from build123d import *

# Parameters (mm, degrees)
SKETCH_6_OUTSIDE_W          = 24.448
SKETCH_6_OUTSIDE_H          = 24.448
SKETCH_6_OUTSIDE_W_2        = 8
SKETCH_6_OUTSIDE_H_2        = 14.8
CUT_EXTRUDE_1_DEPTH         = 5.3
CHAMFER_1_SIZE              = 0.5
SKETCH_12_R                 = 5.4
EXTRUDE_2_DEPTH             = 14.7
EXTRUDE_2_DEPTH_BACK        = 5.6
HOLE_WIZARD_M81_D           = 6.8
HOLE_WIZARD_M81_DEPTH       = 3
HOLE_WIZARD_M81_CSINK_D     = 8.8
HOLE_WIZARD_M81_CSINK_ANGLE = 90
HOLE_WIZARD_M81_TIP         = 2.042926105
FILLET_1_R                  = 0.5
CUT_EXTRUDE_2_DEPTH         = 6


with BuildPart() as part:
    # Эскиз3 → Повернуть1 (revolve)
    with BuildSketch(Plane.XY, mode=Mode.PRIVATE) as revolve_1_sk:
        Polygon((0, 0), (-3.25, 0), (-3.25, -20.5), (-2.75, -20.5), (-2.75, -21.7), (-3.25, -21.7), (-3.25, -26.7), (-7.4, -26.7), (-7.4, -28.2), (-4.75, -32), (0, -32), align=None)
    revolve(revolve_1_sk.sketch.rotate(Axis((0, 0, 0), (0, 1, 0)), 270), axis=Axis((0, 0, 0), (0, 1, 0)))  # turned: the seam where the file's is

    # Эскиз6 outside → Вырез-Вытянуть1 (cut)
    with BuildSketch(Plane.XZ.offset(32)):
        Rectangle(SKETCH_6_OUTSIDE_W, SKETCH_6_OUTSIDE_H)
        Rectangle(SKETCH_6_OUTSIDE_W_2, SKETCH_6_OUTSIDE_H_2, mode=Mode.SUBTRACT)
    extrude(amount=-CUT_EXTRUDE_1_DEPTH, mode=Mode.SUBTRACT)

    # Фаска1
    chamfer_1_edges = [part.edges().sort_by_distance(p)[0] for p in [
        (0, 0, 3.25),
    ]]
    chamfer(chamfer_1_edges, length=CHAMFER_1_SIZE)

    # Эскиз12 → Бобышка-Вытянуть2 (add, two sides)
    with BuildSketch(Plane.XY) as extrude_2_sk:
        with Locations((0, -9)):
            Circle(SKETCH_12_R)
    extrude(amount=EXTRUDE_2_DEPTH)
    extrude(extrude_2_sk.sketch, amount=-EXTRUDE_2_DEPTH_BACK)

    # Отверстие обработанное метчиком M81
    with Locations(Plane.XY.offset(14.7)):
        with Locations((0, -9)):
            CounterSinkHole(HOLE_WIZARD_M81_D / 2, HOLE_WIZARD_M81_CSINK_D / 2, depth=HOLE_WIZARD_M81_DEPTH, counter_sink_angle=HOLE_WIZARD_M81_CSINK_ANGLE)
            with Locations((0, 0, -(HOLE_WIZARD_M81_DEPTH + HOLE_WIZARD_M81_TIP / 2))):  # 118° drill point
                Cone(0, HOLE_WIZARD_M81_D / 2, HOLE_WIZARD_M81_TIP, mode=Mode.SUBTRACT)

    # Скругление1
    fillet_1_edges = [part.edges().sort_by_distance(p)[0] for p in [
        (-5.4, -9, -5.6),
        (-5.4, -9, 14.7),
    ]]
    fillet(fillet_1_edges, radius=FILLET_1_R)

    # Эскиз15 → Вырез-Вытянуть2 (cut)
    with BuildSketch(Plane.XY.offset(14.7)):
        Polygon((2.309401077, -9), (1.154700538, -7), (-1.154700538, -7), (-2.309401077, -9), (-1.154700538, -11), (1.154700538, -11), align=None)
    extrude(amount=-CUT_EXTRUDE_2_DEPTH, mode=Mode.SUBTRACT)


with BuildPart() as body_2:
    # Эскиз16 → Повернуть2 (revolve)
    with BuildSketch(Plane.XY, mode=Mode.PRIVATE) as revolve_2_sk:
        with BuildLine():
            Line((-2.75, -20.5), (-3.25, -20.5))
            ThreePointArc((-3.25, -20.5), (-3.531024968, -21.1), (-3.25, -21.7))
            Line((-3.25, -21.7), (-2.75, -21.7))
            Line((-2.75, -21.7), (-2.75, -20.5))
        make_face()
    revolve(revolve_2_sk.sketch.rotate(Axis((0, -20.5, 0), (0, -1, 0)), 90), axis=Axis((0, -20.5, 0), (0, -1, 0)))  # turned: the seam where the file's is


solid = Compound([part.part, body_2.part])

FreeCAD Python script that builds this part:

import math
import FreeCAD as App
import Part
import Sketcher
from FreeCAD import Vector
Q = App.Units.Quantity


def edges_at(feature, points):
    """Names of the edges that pass closest to the given points."""
    edges = feature.Shape.Edges
    near = lambda p: min(range(len(edges)), key=lambda i: edges[i].distToShape(Part.Vertex(*p))[0])
    return sorted({f"Edge{near(p) + 1}" for p in points})

doc = App.newDocument("Part")
params = doc.addObject("Spreadsheet::Sheet", "Params")
for row, (alias, value) in enumerate([
    ("sketch1_height", "5 mm"),
    ("sketch1_height2", "32 mm"),
    ("sketch1_width", "0.5 mm"),
    ("sketch1_height3", "20.5 mm"),
    ("sketch1_height4", "1.2 mm"),
    ("revolution_angle", "360 deg"),
    ("sketch2_width", "8 mm"),
    ("sketch2_height", "14.8 mm"),
    ("pocket1_length", "5.3 mm"),
    ("chamfer_size", "0.5 mm"),
    ("sketch3_diameter", "10.8 mm"),
    ("pad1_length", "14.7 mm"),
    ("pad1_length2", "5.6 mm"),
    ("sketch4_diameter", "6.8 mm"),
    ("hole_diameter", "6.8 mm"),
    ("hole_depth", "3 mm"),
    ("hole_csink_diameter", "8.8 mm"),
    ("fillet_radius", "0.5 mm"),
    ("pocket2_length", "6 mm"),
    ("sketch6_width", "0.5 mm"),
    ("sketch6_height", "1.2 mm"),
    ("revolution2_angle", "360 deg"),
], start=1):
    params.set(f"A{row}", alias)
    params.set(f"B{row}", "=" + value)
    params.setAlias(f"B{row}", alias)

body = doc.addObject("PartDesign::Body", "Body")

sketch1 = body.newObject("Sketcher::SketchObject", "Sketch")
sketch1.AttachmentSupport = (doc.getObject("XY_Plane"), [""])
sketch1.MapMode = "FlatFace"
sketch1.addGeometry(Part.LineSegment(Vector(0, 0, 0), Vector(-3.25, 0, 0)), False)
sketch1.addGeometry(Part.LineSegment(Vector(-3.25, 0, 0), Vector(-3.25, -20.5, 0)), False)
sketch1.addGeometry(Part.LineSegment(Vector(-3.25, -20.5, 0), Vector(-2.75, -20.5, 0)), False)
sketch1.addGeometry(Part.LineSegment(Vector(-2.75, -20.5, 0), Vector(-2.75, -21.7, 0)), False)
sketch1.addGeometry(Part.LineSegment(Vector(-2.75, -21.7, 0), Vector(-3.25, -21.7, 0)), False)
sketch1.addGeometry(Part.LineSegment(Vector(-3.25, -21.7, 0), Vector(-3.25, -26.7, 0)), False)
sketch1.addGeometry(Part.LineSegment(Vector(-3.25, -26.7, 0), Vector(-7.4, -26.7, 0)), False)
sketch1.addGeometry(Part.LineSegment(Vector(-7.4, -26.7, 0), Vector(-7.4, -28.2, 0)), False)
sketch1.addGeometry(Part.LineSegment(Vector(-7.4, -28.2, 0), Vector(-4.75, -32, 0)), False)
sketch1.addGeometry(Part.LineSegment(Vector(-4.75, -32, 0), Vector(0, -32, 0)), False)
sketch1.addGeometry(Part.LineSegment(Vector(0, -32, 0), Vector(0, 0, 0)), False)
sketch1.addConstraint(Sketcher.Constraint("Coincident", 0, 2, 1, 1))
sketch1.addConstraint(Sketcher.Constraint("Coincident", 1, 2, 2, 1))
sketch1.addConstraint(Sketcher.Constraint("Coincident", 2, 2, 3, 1))
sketch1.addConstraint(Sketcher.Constraint("Coincident", 3, 2, 4, 1))
sketch1.addConstraint(Sketcher.Constraint("Coincident", 4, 2, 5, 1))
sketch1.addConstraint(Sketcher.Constraint("Coincident", 5, 2, 6, 1))
sketch1.addConstraint(Sketcher.Constraint("Coincident", 6, 2, 7, 1))
sketch1.addConstraint(Sketcher.Constraint("Coincident", 7, 2, 8, 1))
sketch1.addConstraint(Sketcher.Constraint("Coincident", 8, 2, 9, 1))
sketch1.addConstraint(Sketcher.Constraint("Coincident", 9, 2, 10, 1))
sketch1.addConstraint(Sketcher.Constraint("Coincident", 10, 2, 0, 1))
sketch1.addConstraint(Sketcher.Constraint("Horizontal", 0))
sketch1.addConstraint(Sketcher.Constraint("Vertical", 1))
sketch1.addConstraint(Sketcher.Constraint("Horizontal", 2))
sketch1.addConstraint(Sketcher.Constraint("Vertical", 3))
sketch1.addConstraint(Sketcher.Constraint("Horizontal", 4))
sketch1.addConstraint(Sketcher.Constraint("Vertical", 5))
sketch1.addConstraint(Sketcher.Constraint("Horizontal", 6))
sketch1.addConstraint(Sketcher.Constraint("Vertical", 7))
sketch1.addConstraint(Sketcher.Constraint("Horizontal", 9))
sketch1.addConstraint(Sketcher.Constraint("Vertical", 10))
sketch1.addConstraint(Sketcher.Constraint("Coincident", 10, 2, -1, 1))
sketch1.addConstraint(Sketcher.Constraint("Vertical", 1, 2, 4, 2))
sketch1.addConstraint(Sketcher.Constraint("DistanceY", 5, 2, 5, 1, 5.0))
sketch1.addConstraint(Sketcher.Constraint("DistanceY", 10, 1, 10, 2, 32.0))
sketch1.addConstraint(Sketcher.Constraint("DistanceX", 2, 1, 2, 2, 0.5))
sketch1.addConstraint(Sketcher.Constraint("DistanceY", 1, 2, 1, 1, 20.5))
sketch1.addConstraint(Sketcher.Constraint("DistanceY", 3, 2, 3, 1, 1.2))
sketch1.addConstraint(Sketcher.Constraint("DistanceY", 7, 2, 7, 1, 1.5))
sketch1.addConstraint(Sketcher.Constraint("DistanceX", 8, 2, 3, 2, 2.0))
sketch1.addConstraint(Sketcher.Constraint("DistanceX", 0, 2, 0, 1, 3.25))
sketch1.addConstraint(Sketcher.Constraint("DistanceX", 6, 2, 6, 1, 4.15))
sketch1.setExpression("Constraints[23]", "Params.sketch1_height")
sketch1.setExpression("Constraints[24]", "Params.sketch1_height2")
sketch1.setExpression("Constraints[25]", "Params.sketch1_width")
sketch1.setExpression("Constraints[26]", "Params.sketch1_height3")
sketch1.setExpression("Constraints[27]", "Params.sketch1_height4")
revolution = body.newObject("PartDesign::Revolution", "Revolution")
revolution.Profile = sketch1
revolution.ReferenceAxis = (sketch1, ["V_Axis"])
revolution.setExpression("Angle", "Params.revolution_angle")

sketch2 = body.newObject("Sketcher::SketchObject", "Sketch001")
sketch2.AttachmentSupport = (doc.getObject("XZ_Plane"), [""])
sketch2.MapMode = "FlatFace"
sketch2.AttachmentOffset = App.Placement(Vector(0, 0, 32), App.Rotation())
sketch2.addGeometry(Part.LineSegment(Vector(-12.224, 12.224, 0), Vector(-12.224, -12.224, 0)), False)
sketch2.addGeometry(Part.LineSegment(Vector(-12.224, -12.224, 0), Vector(12.224, -12.224, 0)), False)
sketch2.addGeometry(Part.LineSegment(Vector(12.224, -12.224, 0), Vector(12.224, 12.224, 0)), False)
sketch2.addGeometry(Part.LineSegment(Vector(12.224, 12.224, 0), Vector(-12.224, 12.224, 0)), False)
sketch2.addGeometry(Part.LineSegment(Vector(4, -7.4, 0), Vector(-4, -7.4, 0)), False)
sketch2.addGeometry(Part.LineSegment(Vector(-4, -7.4, 0), Vector(-4, 7.4, 0)), False)
sketch2.addGeometry(Part.LineSegment(Vector(-4, 7.4, 0), Vector(4, 7.4, 0)), False)
sketch2.addGeometry(Part.LineSegment(Vector(4, 7.4, 0), Vector(4, -7.4, 0)), False)
sketch2.addConstraint(Sketcher.Constraint("Coincident", 0, 2, 1, 1))
sketch2.addConstraint(Sketcher.Constraint("Coincident", 1, 2, 2, 1))
sketch2.addConstraint(Sketcher.Constraint("Coincident", 2, 2, 3, 1))
sketch2.addConstraint(Sketcher.Constraint("Coincident", 3, 2, 0, 1))
sketch2.addConstraint(Sketcher.Constraint("Coincident", 4, 2, 5, 1))
sketch2.addConstraint(Sketcher.Constraint("Coincident", 5, 2, 6, 1))
sketch2.addConstraint(Sketcher.Constraint("Coincident", 6, 2, 7, 1))
sketch2.addConstraint(Sketcher.Constraint("Coincident", 7, 2, 4, 1))
sketch2.addConstraint(Sketcher.Constraint("Vertical", 0))
sketch2.addConstraint(Sketcher.Constraint("Horizontal", 1))
sketch2.addConstraint(Sketcher.Constraint("Vertical", 2))
sketch2.addConstraint(Sketcher.Constraint("Horizontal", 3))
sketch2.addConstraint(Sketcher.Constraint("Horizontal", 4))
sketch2.addConstraint(Sketcher.Constraint("Vertical", 5))
sketch2.addConstraint(Sketcher.Constraint("Horizontal", 6))
sketch2.addConstraint(Sketcher.Constraint("Vertical", 7))
sketch2.addConstraint(Sketcher.Constraint("Symmetric", 0, 2, 2, 2, -1, 1))
sketch2.addConstraint(Sketcher.Constraint("Symmetric", 4, 2, 6, 2, -1, 1))
sketch2.addConstraint(Sketcher.Constraint("Equal", 3, 0))
sketch2.addConstraint(Sketcher.Constraint("DistanceX", 4, 2, 4, 1, 8.0))
sketch2.addConstraint(Sketcher.Constraint("DistanceY", 5, 1, 5, 2, 14.8))
sketch2.addConstraint(Sketcher.Constraint("DistanceX", 1, 1, 1, 2, 24.448))
sketch2.setExpression("Constraints[19]", "Params.sketch2_width")
sketch2.setExpression("Constraints[20]", "Params.sketch2_height")
pocket1 = body.newObject("PartDesign::Pocket", "Pocket")
pocket1.Profile = sketch2
pocket1.setExpression("Length", "Params.pocket1_length")
doc.recompute()

chamfer = body.newObject("PartDesign::Chamfer", "Chamfer")
chamfer.Base = (pocket1, edges_at(pocket1, [(0, 0, 3.25)]))
chamfer.setExpression("Size", "Params.chamfer_size")

sketch3 = body.newObject("Sketcher::SketchObject", "Sketch002")
sketch3.AttachmentSupport = (doc.getObject("XY_Plane"), [""])
sketch3.MapMode = "FlatFace"
sketch3.addGeometry(Part.Circle(Vector(0, -9, 0), Vector(0, 0, 1), 5.4), False)
sketch3.addConstraint(Sketcher.Constraint("PointOnObject", 0, 3, -2))
sketch3.addConstraint(Sketcher.Constraint("Diameter", 0, 10.8))
sketch3.addConstraint(Sketcher.Constraint("DistanceY", 0, 3, -1, 1, 9.0))
sketch3.setExpression("Constraints[1]", "Params.sketch3_diameter")
pad1 = body.newObject("PartDesign::Pad", "Pad")
pad1.Profile = sketch3
pad1.Type = "TwoLengths"
pad1.setExpression("Length", "Params.pad1_length")
pad1.setExpression("Length2", "Params.pad1_length2")

sketch4 = body.newObject("Sketcher::SketchObject", "Sketch003")
sketch4.AttachmentSupport = (doc.getObject("XY_Plane"), [""])
sketch4.MapMode = "FlatFace"
sketch4.AttachmentOffset = App.Placement(Vector(0, 0, 14.7), App.Rotation())
sketch4.addGeometry(Part.Circle(Vector(0, -9, 0), Vector(0, 0, 1), 3.4), False)
sketch4.addConstraint(Sketcher.Constraint("PointOnObject", 0, 3, -2))
sketch4.addConstraint(Sketcher.Constraint("Diameter", 0, 6.8))
sketch4.addConstraint(Sketcher.Constraint("DistanceY", 0, 3, -1, 1, 9.0))
sketch4.setExpression("Constraints[1]", "Params.sketch4_diameter")
doc.recompute()
hole = body.newObject("PartDesign::Hole", "Hole")
hole.Profile = sketch4
hole.ThreadType = "None"
hole.setExpression("Diameter", "Params.hole_diameter")
hole.DepthType = "Dimension"
hole.setExpression("Depth", "Params.hole_depth")
hole.DrillPoint = "Angled"
hole.DrillPointAngle = 118
hole.HoleCutType = "Countersink"
hole.setExpression("HoleCutDiameter", "Params.hole_csink_diameter")
hole.HoleCutCountersinkAngle = 90
doc.recompute()

fillet = body.newObject("PartDesign::Fillet", "Fillet")
fillet.Base = (hole, edges_at(hole, [(-5.4, -9, -5.6), (-5.4, -9, 14.7)]))
fillet.setExpression("Radius", "Params.fillet_radius")

sketch5 = body.newObject("Sketcher::SketchObject", "Sketch004")
sketch5.AttachmentSupport = (doc.getObject("XY_Plane"), [""])
sketch5.MapMode = "FlatFace"
sketch5.AttachmentOffset = App.Placement(Vector(0, 0, 14.7), App.Rotation())
sketch5.addGeometry(Part.LineSegment(Vector(2.309401, -9, 0), Vector(1.154701, -7, 0)), False)
sketch5.addGeometry(Part.LineSegment(Vector(1.154701, -7, 0), Vector(-1.154701, -7, 0)), False)
sketch5.addGeometry(Part.LineSegment(Vector(-1.154701, -7, 0), Vector(-2.309401, -9, 0)), False)
sketch5.addGeometry(Part.LineSegment(Vector(-2.309401, -9, 0), Vector(-1.154701, -11, 0)), False)
sketch5.addGeometry(Part.LineSegment(Vector(-1.154701, -11, 0), Vector(1.154701, -11, 0)), False)
sketch5.addGeometry(Part.LineSegment(Vector(1.154701, -11, 0), Vector(2.309401, -9, 0)), False)
sketch5.addConstraint(Sketcher.Constraint("Coincident", 0, 2, 1, 1))
sketch5.addConstraint(Sketcher.Constraint("Coincident", 1, 2, 2, 1))
sketch5.addConstraint(Sketcher.Constraint("Coincident", 2, 2, 3, 1))
sketch5.addConstraint(Sketcher.Constraint("Coincident", 3, 2, 4, 1))
sketch5.addConstraint(Sketcher.Constraint("Coincident", 4, 2, 5, 1))
sketch5.addConstraint(Sketcher.Constraint("Coincident", 5, 2, 0, 1))
sketch5.addConstraint(Sketcher.Constraint("Horizontal", 1))
sketch5.addConstraint(Sketcher.Constraint("Horizontal", 4))
sketch5.addConstraint(Sketcher.Constraint("Symmetric", 2, 2, 5, 2, -2))
sketch5.addConstraint(Sketcher.Constraint("Parallel", 0, 3))
sketch5.addConstraint(Sketcher.Constraint("Parallel", 2, 5))
sketch5.addConstraint(Sketcher.Constraint("Vertical", 1, 2, 3, 2))
sketch5.addConstraint(Sketcher.Constraint("Vertical", 0, 2, 4, 2))
sketch5.addConstraint(Sketcher.Constraint("Angle", 0, Q("120 deg")))
sketch5.addConstraint(Sketcher.Constraint("DistanceY", 0, 2, -1, 1, 7.0))
sketch5.addConstraint(Sketcher.Constraint("DistanceY", 2, 2, -1, 1, 9.0))
sketch5.addConstraint(Sketcher.Constraint("DistanceX", 1, 2, 1, 1, 2.309401))
pocket2 = body.newObject("PartDesign::Pocket", "Pocket001")
pocket2.Profile = sketch5
pocket2.setExpression("Length", "Params.pocket2_length")
body2 = doc.addObject("PartDesign::Body", "Body001")

sketch6 = body2.newObject("Sketcher::SketchObject", "Sketch005")
sketch6.AttachmentSupport = (doc.getObject("XY_Plane001"), [""])
sketch6.MapMode = "FlatFace"
sketch6.addGeometry(Part.LineSegment(Vector(-2.75, -20.5, 0), Vector(-3.25, -20.5, 0)), False)
sketch6.addGeometry(Part.ArcOfCircle(Part.Circle(Vector(-2.75, -21.1, 0), Vector(0, 0, 1), 0.781025), math.radians(129.805571), math.radians(230.194429)), False)
sketch6.addGeometry(Part.LineSegment(Vector(-3.25, -21.7, 0), Vector(-2.75, -21.7, 0)), False)
sketch6.addGeometry(Part.LineSegment(Vector(-2.75, -21.7, 0), Vector(-2.75, -20.5, 0)), False)
sketch6.addConstraint(Sketcher.Constraint("Coincident", 0, 2, 1, 1))
sketch6.addConstraint(Sketcher.Constraint("Coincident", 1, 2, 2, 1))
sketch6.addConstraint(Sketcher.Constraint("Coincident", 2, 2, 3, 1))
sketch6.addConstraint(Sketcher.Constraint("Coincident", 3, 2, 0, 1))
sketch6.addConstraint(Sketcher.Constraint("Horizontal", 0))
sketch6.addConstraint(Sketcher.Constraint("Horizontal", 2))
sketch6.addConstraint(Sketcher.Constraint("Vertical", 3))
sketch6.addConstraint(Sketcher.Constraint("Vertical", 0, 2, 1, 2))
sketch6.addConstraint(Sketcher.Constraint("Vertical", 1, 3, 2, 2))
sketch6.addConstraint(Sketcher.Constraint("DistanceX", 0, 2, 0, 1, 0.5))
sketch6.addConstraint(Sketcher.Constraint("DistanceY", 3, 1, 3, 2, 1.2))
sketch6.addConstraint(Sketcher.Constraint("DistanceY", 1, 3, -1, 1, 21.1))
sketch6.addConstraint(Sketcher.Constraint("DistanceX", 1, 3, -1, 1, 2.75))
sketch6.setExpression("Constraints[9]", "Params.sketch6_width")
sketch6.setExpression("Constraints[10]", "Params.sketch6_height")
revolution2 = body2.newObject("PartDesign::Revolution", "Revolution001")
revolution2.Profile = sketch6
revolution2.ReferenceAxis = (sketch6, ["V_Axis"])
revolution2.setExpression("Angle", "Params.revolution2_angle")

doc.recompute()
